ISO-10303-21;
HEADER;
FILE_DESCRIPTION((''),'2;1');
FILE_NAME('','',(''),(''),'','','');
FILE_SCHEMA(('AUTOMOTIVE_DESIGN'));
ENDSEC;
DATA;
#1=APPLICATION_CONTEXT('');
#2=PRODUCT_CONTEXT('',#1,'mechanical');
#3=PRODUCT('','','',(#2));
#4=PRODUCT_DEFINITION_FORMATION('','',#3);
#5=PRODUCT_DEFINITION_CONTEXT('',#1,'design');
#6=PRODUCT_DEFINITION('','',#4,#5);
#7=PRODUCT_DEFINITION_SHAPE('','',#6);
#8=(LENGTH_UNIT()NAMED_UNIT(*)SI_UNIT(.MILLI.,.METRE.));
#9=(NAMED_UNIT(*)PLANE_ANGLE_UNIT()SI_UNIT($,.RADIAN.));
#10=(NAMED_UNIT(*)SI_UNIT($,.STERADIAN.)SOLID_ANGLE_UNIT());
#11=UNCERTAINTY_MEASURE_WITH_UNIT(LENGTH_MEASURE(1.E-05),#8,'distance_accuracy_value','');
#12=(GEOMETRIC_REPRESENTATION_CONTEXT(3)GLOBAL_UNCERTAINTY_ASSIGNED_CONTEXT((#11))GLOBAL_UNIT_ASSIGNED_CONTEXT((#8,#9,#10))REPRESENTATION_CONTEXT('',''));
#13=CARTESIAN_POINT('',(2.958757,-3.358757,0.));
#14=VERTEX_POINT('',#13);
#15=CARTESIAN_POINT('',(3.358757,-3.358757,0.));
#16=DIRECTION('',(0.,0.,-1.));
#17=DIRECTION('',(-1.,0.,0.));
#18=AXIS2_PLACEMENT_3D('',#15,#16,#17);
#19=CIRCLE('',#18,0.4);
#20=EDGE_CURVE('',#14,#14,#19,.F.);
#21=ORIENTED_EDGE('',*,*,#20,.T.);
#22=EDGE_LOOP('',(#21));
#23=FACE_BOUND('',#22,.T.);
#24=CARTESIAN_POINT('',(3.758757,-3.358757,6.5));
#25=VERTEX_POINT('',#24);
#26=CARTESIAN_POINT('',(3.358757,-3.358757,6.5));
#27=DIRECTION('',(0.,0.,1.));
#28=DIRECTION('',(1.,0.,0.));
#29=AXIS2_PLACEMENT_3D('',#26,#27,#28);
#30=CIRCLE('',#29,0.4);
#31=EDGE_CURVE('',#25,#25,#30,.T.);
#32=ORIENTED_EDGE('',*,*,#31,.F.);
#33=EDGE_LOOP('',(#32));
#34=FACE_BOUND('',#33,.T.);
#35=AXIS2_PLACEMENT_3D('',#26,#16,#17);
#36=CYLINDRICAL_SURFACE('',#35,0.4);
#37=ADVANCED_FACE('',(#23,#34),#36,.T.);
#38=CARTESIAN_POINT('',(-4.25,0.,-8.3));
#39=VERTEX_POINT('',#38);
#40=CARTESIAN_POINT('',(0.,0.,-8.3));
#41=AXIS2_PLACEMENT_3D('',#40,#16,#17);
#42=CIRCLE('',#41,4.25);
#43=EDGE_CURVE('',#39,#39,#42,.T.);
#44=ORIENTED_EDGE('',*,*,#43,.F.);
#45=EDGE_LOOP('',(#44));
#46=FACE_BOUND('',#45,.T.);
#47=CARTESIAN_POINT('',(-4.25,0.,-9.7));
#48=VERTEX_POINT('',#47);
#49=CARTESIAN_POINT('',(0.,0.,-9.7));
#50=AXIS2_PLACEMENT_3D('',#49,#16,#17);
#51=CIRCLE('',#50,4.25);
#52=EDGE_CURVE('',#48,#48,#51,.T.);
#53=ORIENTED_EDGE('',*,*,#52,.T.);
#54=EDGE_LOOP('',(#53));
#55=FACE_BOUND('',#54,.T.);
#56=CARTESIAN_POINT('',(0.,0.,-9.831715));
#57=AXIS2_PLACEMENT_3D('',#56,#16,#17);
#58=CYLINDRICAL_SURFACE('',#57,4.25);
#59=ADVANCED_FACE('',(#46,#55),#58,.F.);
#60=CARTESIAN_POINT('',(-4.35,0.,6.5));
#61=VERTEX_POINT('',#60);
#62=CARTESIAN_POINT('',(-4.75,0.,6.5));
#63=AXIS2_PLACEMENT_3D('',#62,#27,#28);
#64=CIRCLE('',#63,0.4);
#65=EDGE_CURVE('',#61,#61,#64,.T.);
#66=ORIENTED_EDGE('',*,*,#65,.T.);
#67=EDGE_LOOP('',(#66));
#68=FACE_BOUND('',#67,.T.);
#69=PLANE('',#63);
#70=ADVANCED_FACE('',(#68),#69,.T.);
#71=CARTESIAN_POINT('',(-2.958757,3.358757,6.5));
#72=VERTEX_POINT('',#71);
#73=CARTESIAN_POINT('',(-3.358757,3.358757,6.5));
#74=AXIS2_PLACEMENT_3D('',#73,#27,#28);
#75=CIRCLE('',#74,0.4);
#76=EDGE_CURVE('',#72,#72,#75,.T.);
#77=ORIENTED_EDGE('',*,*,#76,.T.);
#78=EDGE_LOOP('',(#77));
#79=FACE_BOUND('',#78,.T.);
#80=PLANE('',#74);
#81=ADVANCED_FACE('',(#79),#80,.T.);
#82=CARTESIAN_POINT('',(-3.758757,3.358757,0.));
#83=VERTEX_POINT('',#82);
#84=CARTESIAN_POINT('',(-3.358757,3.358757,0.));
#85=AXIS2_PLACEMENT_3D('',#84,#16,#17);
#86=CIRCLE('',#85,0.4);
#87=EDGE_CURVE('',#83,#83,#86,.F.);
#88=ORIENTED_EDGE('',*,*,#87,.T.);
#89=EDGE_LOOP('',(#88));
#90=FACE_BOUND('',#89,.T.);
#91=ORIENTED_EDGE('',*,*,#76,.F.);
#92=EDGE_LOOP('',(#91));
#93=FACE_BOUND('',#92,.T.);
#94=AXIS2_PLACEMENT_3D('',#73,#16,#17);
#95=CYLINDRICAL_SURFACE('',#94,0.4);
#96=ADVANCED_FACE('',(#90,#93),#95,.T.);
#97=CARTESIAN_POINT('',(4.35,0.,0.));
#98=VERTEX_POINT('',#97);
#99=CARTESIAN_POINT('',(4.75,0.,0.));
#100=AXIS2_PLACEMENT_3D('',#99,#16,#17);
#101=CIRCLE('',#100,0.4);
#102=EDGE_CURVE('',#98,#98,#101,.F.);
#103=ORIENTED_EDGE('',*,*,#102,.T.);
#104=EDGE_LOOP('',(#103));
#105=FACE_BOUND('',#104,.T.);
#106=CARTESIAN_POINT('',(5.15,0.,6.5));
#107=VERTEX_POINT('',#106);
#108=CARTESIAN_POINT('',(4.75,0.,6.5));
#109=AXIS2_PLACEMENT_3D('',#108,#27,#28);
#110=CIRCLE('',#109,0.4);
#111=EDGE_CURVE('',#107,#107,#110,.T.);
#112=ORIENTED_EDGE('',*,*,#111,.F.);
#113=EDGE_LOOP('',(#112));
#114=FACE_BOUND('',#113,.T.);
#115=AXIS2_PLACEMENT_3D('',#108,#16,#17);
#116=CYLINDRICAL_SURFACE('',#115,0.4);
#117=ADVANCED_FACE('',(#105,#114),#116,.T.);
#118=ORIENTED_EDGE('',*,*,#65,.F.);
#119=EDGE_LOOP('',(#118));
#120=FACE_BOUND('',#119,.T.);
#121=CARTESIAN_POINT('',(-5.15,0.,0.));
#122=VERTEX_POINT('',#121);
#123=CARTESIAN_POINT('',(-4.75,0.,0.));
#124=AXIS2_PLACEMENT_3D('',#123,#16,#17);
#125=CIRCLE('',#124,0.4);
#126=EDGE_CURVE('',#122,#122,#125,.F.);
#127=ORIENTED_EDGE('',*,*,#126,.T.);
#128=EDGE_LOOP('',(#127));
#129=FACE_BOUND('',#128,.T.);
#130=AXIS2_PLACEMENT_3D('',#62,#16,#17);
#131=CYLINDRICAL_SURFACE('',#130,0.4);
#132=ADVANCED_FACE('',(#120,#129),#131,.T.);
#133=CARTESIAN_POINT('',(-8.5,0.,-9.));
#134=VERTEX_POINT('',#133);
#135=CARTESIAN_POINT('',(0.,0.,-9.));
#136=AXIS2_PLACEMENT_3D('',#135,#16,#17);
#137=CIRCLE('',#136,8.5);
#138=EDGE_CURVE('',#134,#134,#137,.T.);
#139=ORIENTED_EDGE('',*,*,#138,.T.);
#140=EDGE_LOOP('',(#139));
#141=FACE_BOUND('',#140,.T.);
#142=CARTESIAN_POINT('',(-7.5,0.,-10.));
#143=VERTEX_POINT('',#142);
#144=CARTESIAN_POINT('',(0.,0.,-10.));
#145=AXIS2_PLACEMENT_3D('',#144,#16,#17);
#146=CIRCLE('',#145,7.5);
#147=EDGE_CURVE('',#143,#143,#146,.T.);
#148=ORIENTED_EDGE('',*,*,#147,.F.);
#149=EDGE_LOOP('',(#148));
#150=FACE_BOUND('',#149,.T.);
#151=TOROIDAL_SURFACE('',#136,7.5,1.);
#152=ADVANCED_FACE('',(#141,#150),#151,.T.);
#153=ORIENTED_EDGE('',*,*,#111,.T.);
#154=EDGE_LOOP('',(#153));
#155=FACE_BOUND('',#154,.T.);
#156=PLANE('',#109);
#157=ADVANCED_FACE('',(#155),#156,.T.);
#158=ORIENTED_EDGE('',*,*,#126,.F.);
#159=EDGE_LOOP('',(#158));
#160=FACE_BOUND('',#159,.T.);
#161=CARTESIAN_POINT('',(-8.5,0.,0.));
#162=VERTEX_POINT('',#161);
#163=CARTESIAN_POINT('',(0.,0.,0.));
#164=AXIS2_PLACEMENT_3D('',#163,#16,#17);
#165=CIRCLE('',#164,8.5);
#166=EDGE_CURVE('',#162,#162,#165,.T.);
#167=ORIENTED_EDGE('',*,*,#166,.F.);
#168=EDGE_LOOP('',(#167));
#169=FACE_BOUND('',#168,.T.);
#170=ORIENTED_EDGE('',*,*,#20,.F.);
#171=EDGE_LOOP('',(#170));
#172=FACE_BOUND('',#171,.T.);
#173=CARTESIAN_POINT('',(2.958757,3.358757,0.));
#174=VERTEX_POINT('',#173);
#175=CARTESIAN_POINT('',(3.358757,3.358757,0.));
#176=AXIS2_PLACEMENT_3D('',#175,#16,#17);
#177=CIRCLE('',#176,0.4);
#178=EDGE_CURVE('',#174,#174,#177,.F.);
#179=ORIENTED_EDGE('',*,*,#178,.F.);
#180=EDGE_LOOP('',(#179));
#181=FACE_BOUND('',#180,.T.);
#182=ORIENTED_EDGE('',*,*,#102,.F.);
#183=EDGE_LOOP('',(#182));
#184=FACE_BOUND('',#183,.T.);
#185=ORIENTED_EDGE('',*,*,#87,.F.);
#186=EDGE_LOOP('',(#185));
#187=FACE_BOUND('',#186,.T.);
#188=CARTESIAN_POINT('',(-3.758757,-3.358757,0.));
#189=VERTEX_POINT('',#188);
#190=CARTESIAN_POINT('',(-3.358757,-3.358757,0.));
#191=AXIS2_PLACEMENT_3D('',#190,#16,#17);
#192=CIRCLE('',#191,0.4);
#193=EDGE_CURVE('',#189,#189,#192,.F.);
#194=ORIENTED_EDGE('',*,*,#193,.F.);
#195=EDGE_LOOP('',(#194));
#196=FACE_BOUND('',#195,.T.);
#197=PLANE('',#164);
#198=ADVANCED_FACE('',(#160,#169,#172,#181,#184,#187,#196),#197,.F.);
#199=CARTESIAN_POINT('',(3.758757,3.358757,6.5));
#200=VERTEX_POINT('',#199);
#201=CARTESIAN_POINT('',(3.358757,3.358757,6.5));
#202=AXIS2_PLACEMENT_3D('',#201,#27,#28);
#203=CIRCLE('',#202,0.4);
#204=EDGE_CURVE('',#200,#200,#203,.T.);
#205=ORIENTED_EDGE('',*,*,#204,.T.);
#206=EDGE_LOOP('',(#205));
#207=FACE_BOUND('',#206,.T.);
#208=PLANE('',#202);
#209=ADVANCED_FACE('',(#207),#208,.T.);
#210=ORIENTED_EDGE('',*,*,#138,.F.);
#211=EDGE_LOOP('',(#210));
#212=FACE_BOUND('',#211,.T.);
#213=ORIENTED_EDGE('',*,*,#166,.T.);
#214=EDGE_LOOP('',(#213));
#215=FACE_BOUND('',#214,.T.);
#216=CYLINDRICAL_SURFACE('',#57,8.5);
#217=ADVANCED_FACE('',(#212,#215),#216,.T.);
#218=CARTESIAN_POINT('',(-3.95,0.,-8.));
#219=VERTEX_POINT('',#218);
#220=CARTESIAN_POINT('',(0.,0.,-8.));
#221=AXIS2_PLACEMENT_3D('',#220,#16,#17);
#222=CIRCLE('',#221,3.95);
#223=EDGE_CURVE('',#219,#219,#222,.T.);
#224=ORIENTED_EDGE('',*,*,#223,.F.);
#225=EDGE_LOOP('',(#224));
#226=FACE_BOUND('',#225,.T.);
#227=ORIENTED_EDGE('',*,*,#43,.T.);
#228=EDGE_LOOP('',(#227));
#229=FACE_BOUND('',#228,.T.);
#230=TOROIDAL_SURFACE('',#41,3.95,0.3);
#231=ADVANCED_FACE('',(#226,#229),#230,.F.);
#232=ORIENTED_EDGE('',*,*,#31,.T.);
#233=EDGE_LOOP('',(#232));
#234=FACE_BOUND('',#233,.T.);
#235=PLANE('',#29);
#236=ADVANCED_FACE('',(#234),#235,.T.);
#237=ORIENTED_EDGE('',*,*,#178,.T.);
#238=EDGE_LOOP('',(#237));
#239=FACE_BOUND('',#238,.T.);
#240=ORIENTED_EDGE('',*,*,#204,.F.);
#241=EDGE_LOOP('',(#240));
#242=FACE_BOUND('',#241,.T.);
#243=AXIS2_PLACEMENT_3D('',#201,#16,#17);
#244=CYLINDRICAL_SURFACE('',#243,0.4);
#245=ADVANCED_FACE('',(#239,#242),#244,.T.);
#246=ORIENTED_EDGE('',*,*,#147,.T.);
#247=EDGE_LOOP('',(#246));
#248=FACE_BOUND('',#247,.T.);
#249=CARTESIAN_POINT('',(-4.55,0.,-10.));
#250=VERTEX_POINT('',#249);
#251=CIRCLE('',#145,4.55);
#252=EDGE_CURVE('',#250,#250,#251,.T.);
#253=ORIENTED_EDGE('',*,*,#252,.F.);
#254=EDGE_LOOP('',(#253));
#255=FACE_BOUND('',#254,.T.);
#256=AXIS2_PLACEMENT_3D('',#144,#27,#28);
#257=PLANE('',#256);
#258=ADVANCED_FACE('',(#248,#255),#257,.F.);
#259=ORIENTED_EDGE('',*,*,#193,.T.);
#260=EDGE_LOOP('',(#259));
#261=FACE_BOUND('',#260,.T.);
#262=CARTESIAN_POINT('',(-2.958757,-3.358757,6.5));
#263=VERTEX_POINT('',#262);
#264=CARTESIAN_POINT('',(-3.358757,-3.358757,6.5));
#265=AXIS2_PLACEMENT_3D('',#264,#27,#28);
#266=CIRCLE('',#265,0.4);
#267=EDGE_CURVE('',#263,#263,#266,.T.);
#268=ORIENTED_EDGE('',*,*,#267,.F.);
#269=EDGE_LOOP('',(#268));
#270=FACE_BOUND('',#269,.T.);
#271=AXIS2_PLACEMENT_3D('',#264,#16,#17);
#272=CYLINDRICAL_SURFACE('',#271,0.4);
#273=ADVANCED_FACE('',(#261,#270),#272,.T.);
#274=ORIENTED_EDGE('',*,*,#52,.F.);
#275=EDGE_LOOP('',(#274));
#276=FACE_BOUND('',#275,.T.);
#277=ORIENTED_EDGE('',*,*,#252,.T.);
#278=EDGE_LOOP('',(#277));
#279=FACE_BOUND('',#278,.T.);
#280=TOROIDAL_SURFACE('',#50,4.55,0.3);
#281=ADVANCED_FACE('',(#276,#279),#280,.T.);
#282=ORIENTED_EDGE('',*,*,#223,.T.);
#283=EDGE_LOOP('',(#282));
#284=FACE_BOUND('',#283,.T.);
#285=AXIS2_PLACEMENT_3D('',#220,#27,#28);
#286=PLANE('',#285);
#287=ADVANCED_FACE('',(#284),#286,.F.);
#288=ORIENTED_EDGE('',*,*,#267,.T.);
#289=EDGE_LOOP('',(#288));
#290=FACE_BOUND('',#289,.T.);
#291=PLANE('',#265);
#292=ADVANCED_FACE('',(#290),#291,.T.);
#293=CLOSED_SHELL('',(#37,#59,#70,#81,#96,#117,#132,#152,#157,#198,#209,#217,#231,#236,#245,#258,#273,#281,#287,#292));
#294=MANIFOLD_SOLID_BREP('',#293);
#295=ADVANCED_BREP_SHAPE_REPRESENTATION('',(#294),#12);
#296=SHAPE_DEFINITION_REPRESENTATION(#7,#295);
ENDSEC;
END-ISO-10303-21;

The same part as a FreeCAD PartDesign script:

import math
import FreeCAD as App
import Part
import Sketcher

V = App.Vector
Q = App.Units.Quantity

doc = App.newDocument("Part")
body = doc.addObject("PartDesign::Body", "Body")

sketch1 = body.newObject("Sketcher::SketchObject", "Sketch")
sketch1.AttachmentSupport = (doc.getObject("XZ_Plane"), [""])
sketch1.MapMode = "FlatFace"
sketch1.addGeometry([
    Part.LineSegment(V(0, -8, 0), V(0, 0, 0)),
    Part.LineSegment(V(0, 0, 0), V(8.5, 0, 0)),
    Part.LineSegment(V(8.5, 0, 0), V(8.5, -9, 0)),
    Part.ArcOfCircle(Part.Circle(V(7.5, -9, 0), V(0, 0, 1), 1), math.radians(-90), math.radians(0)),
    Part.LineSegment(V(7.5, -10, 0), V(4.55, -10, 0)),
    Part.ArcOfCircle(Part.Circle(V(4.55, -9.7, 0), V(0, 0, 1), 0.3), math.radians(-180), math.radians(-90)),
    Part.LineSegment(V(4.25, -9.7, 0), V(4.25, -8.3, 0)),
    Part.ArcOfCircle(Part.Circle(V(3.95, -8.3, 0), V(0, 0, 1), 0.3), math.radians(0), math.radians(90)),
    Part.LineSegment(V(3.95, -8, 0), V(0, -8, 0)),
], False)
sketch1.addConstraint([
    Sketcher.Constraint("Coincident", 0, 2, 1, 1),
    Sketcher.Constraint("Coincident", 1, 2, 2, 1),
    Sketcher.Constraint("Tangent", 2, 2, 3, 2),
    Sketcher.Constraint("Tangent", 3, 1, 4, 1),
    Sketcher.Constraint("Tangent", 4, 2, 5, 2),
    Sketcher.Constraint("Tangent", 5, 1, 6, 1),
    Sketcher.Constraint("Tangent", 6, 2, 7, 1),
    Sketcher.Constraint("Tangent", 7, 2, 8, 1),
    Sketcher.Constraint("Coincident", 8, 2, 0, 1),
    Sketcher.Constraint("Vertical", 0),
    Sketcher.Constraint("Horizontal", 1),
    Sketcher.Constraint("Vertical", 2),
    Sketcher.Constraint("Horizontal", 4),
    Sketcher.Constraint("Vertical", 6),
    Sketcher.Constraint("Horizontal", 8),
    Sketcher.Constraint("Coincident", 0, 2, -1, 1),
    Sketcher.Constraint("Equal", 5, 7),
    Sketcher.Constraint("Radius", 3, Q("1 mm")),
    Sketcher.Constraint("Radius", 5, Q("0.3 mm")),
    Sketcher.Constraint("DistanceY", 0, 1, 0, 2, Q("8 mm")),
    Sketcher.Constraint("DistanceY", 2, 2, 2, 1, Q("9 mm")),
    Sketcher.Constraint("DistanceX", 1, 1, 1, 2, Q("8.5 mm")),
    Sketcher.Constraint("DistanceX", 4, 2, 4, 1, Q("2.95 mm")),
])
revolution = body.newObject("PartDesign::Revolution", "Revolution")
revolution.Profile = sketch1
revolution.ReferenceAxis = (sketch1, ["V_Axis"])
revolution.Angle = 360

sketch2 = body.newObject("Sketcher::SketchObject", "Sketch001")
sketch2.AttachmentSupport = (doc.getObject("XY_Plane"), [""])
sketch2.MapMode = "FlatFace"
sketch2.addGeometry([
    Part.Circle(V(-4.75, 0, 0), V(0, 0, 1), 0.4),
    Part.Circle(V(-3.36, 3.36, 0), V(0, 0, 1), 0.4),
    Part.Circle(V(3.36, 3.36, 0), V(0, 0, 1), 0.4),
    Part.Circle(V(4.75, 0, 0), V(0, 0, 1), 0.4),
    Part.Circle(V(3.36, -3.36, 0), V(0, 0, 1), 0.4),
    Part.Circle(V(-3.36, -3.36, 0), V(0, 0, 1), 0.4),
], False)
sketch2.addConstraint([
    Sketcher.Constraint("Equal", 0, 1),
    Sketcher.Constraint("Equal", 1, 2),
    Sketcher.Constraint("Equal", 2, 3),
    Sketcher.Constraint("Equal", 3, 4),
    Sketcher.Constraint("Equal", 4, 5),
    Sketcher.Constraint("Symmetric", 0, 3, 3, 3, -1, 1),
    Sketcher.Constraint("Symmetric", 1, 3, 4, 3, -1, 1),
    Sketcher.Constraint("Symmetric", 2, 3, 5, 3, -1, 1),
    Sketcher.Constraint("Symmetric", 1, 3, 2, 3, -2),
    Sketcher.Constraint("PointOnObject", 0, 3, -1),
    Sketcher.Constraint("Diameter", 0, Q("0.8 mm")),
    Sketcher.Constraint("DistanceX", 0, 3, 3, 3, Q("9.5 mm")),
    Sketcher.Constraint("DistanceX", 1, 3, -1, 1, Q("3.358757 mm")),
    Sketcher.Constraint("DistanceY", -1, 1, 1, 3, Q("3.358757 mm")),
])
pad1 = body.newObject("PartDesign::Pad", "Pad")
pad1.Profile = sketch2
pad1.Length = 6.5

doc.recompute()
